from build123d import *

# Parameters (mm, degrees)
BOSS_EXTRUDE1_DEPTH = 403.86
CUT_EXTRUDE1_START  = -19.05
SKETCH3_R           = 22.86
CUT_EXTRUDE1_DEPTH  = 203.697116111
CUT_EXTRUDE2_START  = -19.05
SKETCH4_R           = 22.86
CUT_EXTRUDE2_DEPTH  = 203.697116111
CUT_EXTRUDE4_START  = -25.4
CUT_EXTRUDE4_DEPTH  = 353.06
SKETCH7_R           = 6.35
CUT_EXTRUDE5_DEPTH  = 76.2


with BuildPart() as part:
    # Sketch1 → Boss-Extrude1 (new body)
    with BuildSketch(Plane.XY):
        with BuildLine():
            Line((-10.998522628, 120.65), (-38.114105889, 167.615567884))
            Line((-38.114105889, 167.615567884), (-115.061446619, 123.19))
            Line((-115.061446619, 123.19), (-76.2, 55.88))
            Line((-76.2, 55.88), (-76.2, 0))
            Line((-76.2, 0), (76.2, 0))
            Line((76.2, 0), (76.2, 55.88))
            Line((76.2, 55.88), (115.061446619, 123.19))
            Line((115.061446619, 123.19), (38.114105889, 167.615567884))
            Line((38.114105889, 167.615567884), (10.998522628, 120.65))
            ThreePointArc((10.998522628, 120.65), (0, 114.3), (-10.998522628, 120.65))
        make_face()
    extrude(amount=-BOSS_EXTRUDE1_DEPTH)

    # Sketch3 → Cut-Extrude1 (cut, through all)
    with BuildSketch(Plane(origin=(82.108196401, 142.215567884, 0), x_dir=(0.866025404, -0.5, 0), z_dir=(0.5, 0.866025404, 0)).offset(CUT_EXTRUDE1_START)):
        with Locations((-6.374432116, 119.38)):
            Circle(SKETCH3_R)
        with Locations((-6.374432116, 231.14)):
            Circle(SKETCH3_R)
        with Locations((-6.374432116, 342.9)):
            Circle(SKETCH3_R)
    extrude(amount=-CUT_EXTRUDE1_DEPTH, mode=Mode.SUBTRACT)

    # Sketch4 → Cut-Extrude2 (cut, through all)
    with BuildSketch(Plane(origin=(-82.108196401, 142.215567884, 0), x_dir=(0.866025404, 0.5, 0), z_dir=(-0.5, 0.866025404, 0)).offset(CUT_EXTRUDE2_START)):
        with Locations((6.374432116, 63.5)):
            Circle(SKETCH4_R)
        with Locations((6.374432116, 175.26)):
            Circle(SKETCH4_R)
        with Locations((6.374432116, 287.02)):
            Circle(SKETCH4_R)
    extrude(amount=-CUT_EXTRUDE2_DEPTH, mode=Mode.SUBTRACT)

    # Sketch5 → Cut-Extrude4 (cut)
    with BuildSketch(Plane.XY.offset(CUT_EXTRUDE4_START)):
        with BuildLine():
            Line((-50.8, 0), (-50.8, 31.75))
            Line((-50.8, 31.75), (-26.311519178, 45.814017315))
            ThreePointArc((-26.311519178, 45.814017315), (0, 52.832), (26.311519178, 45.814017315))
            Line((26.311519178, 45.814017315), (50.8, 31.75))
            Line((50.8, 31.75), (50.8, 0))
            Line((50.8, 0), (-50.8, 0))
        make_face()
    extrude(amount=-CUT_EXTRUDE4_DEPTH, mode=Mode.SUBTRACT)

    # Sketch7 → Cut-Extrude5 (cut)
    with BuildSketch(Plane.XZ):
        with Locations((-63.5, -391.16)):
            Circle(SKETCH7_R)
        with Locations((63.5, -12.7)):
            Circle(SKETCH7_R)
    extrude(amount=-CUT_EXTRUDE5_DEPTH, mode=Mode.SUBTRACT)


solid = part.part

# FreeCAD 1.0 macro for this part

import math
import FreeCAD as App
import Part
import Sketcher
Q = App.Units.Quantity

doc = App.newDocument("Part")
body = doc.addObject("PartDesign::Body", "Body")

# Sketch on XY plane
sketch1 = body.newObject("Sketcher::SketchObject", "Sketch")
sketch1.AttachmentSupport = (doc.getObject("XY_Plane"), [""])
sketch1.MapMode = "FlatFace"
sketch1.addGeometry(Part.LineSegment(App.Vector(-11, 121, 0), App.Vector(-38, 168, 0)), False)
sketch1.addGeometry(Part.LineSegment(App.Vector(-38, 168, 0), App.Vector(-115, 123, 0)), False)
sketch1.addGeometry(Part.LineSegment(App.Vector(-115, 123, 0), App.Vector(-76, 56, 0)), False)
sketch1.addGeometry(Part.LineSegment(App.Vector(-76, 56, 0), App.Vector(-76, 0, 0)), False)
sketch1.addGeometry(Part.LineSegment(App.Vector(-76, 0, 0), App.Vector(76, 0, 0)), False)
sketch1.addGeometry(Part.LineSegment(App.Vector(76, 0, 0), App.Vector(76, 56, 0)), False)
sketch1.addGeometry(Part.LineSegment(App.Vector(76, 56, 0), App.Vector(115, 123, 0)), False)
sketch1.addGeometry(Part.LineSegment(App.Vector(115, 123, 0), App.Vector(38, 168, 0)), False)
sketch1.addGeometry(Part.LineSegment(App.Vector(38, 168, 0), App.Vector(11, 121, 0)), False)
sketch1.addGeometry(Part.ArcOfCircle(Part.Circle(App.Vector(0, 127, 0), App.Vector(0, 0, 1), 13), math.radians(-150), math.radians(-30)), False)
sketch1.addConstraint(Sketcher.Constraint("Coincident", 0, 2, 1, 1))
sketch1.addConstraint(Sketcher.Constraint("Coincident", 1, 2, 2, 1))
sketch1.addConstraint(Sketcher.Constraint("Coincident", 2, 2, 3, 1))
sketch1.addConstraint(Sketcher.Constraint("Coincident", 3, 2, 4, 1))
sketch1.addConstraint(Sketcher.Constraint("Coincident", 4, 2, 5, 1))
sketch1.addConstraint(Sketcher.Constraint("Coincident", 5, 2, 6, 1))
sketch1.addConstraint(Sketcher.Constraint("Coincident", 6, 2, 7, 1))
sketch1.addConstraint(Sketcher.Constraint("Coincident", 7, 2, 8, 1))
sketch1.addConstraint(Sketcher.Constraint("Tangent", 8, 2, 9, 2))
sketch1.addConstraint(Sketcher.Constraint("Tangent", 9, 1, 0, 1))
sketch1.addConstraint(Sketcher.Constraint("Vertical", 3))
sketch1.addConstraint(Sketcher.Constraint("Horizontal", 4))
sketch1.addConstraint(Sketcher.Constraint("Vertical", 5))
sketch1.addConstraint(Sketcher.Constraint("Symmetric", 3, 2, 4, 2, -1, 1))
sketch1.addConstraint(Sketcher.Constraint("Symmetric", 1, 2, 6, 2, -2))
sketch1.addConstraint(Sketcher.Constraint("Symmetric", 0, 2, 7, 2, -2))
sketch1.addConstraint(Sketcher.Constraint("PointOnObject", 9, 3, -2))
sketch1.addConstraint(Sketcher.Constraint("Perpendicular", 0, 1))
sketch1.addConstraint(Sketcher.Constraint("Perpendicular", 1, 2))
sketch1.addConstraint(Sketcher.Constraint("Perpendicular", 6, 7))
sketch1.addConstraint(Sketcher.Constraint("Radius", 9, Q("0.5 in")))
sketch1.addConstraint(Sketcher.Constraint("DistanceX", 4, 1, 4, 2, Q("6 in")))
sketch1.addConstraint(Sketcher.Constraint("DistanceY", 3, 2, 3, 1, Q("2.2 in")))
sketch1.addConstraint(Sketcher.Constraint("DistanceY", -1, 1, 9, 3, Q("5 in")))
sketch1.addConstraint(Sketcher.Constraint("Angle", 0, Q("120 deg")))
sketch1.addConstraint(Sketcher.Constraint("DistanceY", 8, 2, 6, 2, Q("0.1 in")))
pad1 = body.newObject("PartDesign::Pad", "Pad")
pad1.Profile = sketch1
pad1.Length = Q("15.9 in")
pad1.Reversed = True

# Sketch on an angled plane
sketch2 = body.newObject("Sketcher::SketchObject", "Sketch001")
sketch2.Placement = App.Placement(App.Vector(72.583196, 125.717784, 0), App.Rotation(App.Vector(0.866025404, -0.5, 0), App.Vector(0, 0, -1), App.Vector(0.5, 0.866025404, 0), "ZXY"))
sketch2.addGeometry(Part.Circle(App.Vector(-6, 119, 0), App.Vector(0, 0, 1), 23), False)
sketch2.addGeometry(Part.Circle(App.Vector(-6, 231, 0), App.Vector(0, 0, 1), 23), False)
sketch2.addGeometry(Part.Circle(App.Vector(-6, 343, 0), App.Vector(0, 0, 1), 23), False)
sketch2.addConstraint(Sketcher.Constraint("Equal", 0, 1))
sketch2.addConstraint(Sketcher.Constraint("Equal", 1, 2))
sketch2.addConstraint(Sketcher.Constraint("Vertical", 0, 3, 1, 3))
sketch2.addConstraint(Sketcher.Constraint("Vertical", 1, 3, 2, 3))
sketch2.addConstraint(Sketcher.Constraint("Diameter", 0, Q("1.8 in")))
sketch2.addConstraint(Sketcher.Constraint("DistanceY", -1, 1, 0, 3, Q("4.7 in")))
sketch2.addConstraint(Sketcher.Constraint("DistanceY", -1, 1, 1, 3, Q("9.1 in")))
sketch2.addConstraint(Sketcher.Constraint("DistanceY", -1, 1, 2, 3, Q("13.5 in")))
sketch2.addConstraint(Sketcher.Constraint("DistanceX", 0, 3, -1, 1, Q("6.374432 mm")))
pocket1 = body.newObject("PartDesign::Pocket", "Pocket")
pocket1.Profile = sketch2
pocket1.Type = "ThroughAll"

# Sketch on an angled plane
sketch3 = body.newObject("Sketcher::SketchObject", "Sketch002")
sketch3.Placement = App.Placement(App.Vector(-72.583196, 125.717784, 0), App.Rotation(App.Vector(0.866025404, 0.5, 0), App.Vector(0, 0, -1), App.Vector(-0.5, 0.866025404, 0), "ZXY"))
sketch3.addGeometry(Part.Circle(App.Vector(6, 64, 0), App.Vector(0, 0, 1), 23), False)
sketch3.addGeometry(Part.Circle(App.Vector(6, 175, 0), App.Vector(0, 0, 1), 23), False)
sketch3.addGeometry(Part.Circle(App.Vector(6, 287, 0), App.Vector(0, 0, 1), 23), False)
sketch3.addConstraint(Sketcher.Constraint("Equal", 0, 1))
sketch3.addConstraint(Sketcher.Constraint("Equal", 1, 2))
sketch3.addConstraint(Sketcher.Constraint("Vertical", 0, 3, 1, 3))
sketch3.addConstraint(Sketcher.Constraint("Vertical", 1, 3, 2, 3))
sketch3.addConstraint(Sketcher.Constraint("Diameter", 0, Q("1.8 in")))
sketch3.addConstraint(Sketcher.Constraint("DistanceY", -1, 1, 0, 3, Q("2.5 in")))
sketch3.addConstraint(Sketcher.Constraint("DistanceY", -1, 1, 1, 3, Q("6.9 in")))
sketch3.addConstraint(Sketcher.Constraint("DistanceY", -1, 1, 2, 3, Q("11.3 in")))
sketch3.addConstraint(Sketcher.Constraint("DistanceX", -1, 1, 0, 3, Q("6.374432 mm")))
pocket2 = body.newObject("PartDesign::Pocket", "Pocket001")
pocket2.Profile = sketch3
pocket2.Type = "ThroughAll"

# Sketch on XY plane
sketch4 = body.newObject("Sketcher::SketchObject", "Sketch003")
sketch4.AttachmentSupport = (doc.getObject("XY_Plane"), [""])
sketch4.MapMode = "FlatFace"
sketch4.AttachmentOffset = App.Placement(App.Vector(0, 0, -1 * 25.4), App.Rotation())
sketch4.addGeometry(Part.LineSegment(App.Vector(-51, 32, 0), App.Vector(-51, 0, 0)), False)
sketch4.addGeometry(Part.LineSegment(App.Vector(-51, 0, 0), App.Vector(51, 0, 0)), False)
sketch4.addGeometry(Part.LineSegment(App.Vector(51, 0, 0), App.Vector(51, 32, 0)), False)
sketch4.addGeometry(Part.LineSegment(App.Vector(51, 32, 0), App.Vector(26, 46, 0)), False)
sketch4.addGeometry(Part.ArcOfCircle(Part.Circle(App.Vector(0, 0, 0), App.Vector(0, 0, 1), 53), math.radians(60), math.radians(120)), False)
sketch4.addGeometry(Part.LineSegment(App.Vector(-26, 46, 0), App.Vector(-51, 32, 0)), False)
sketch4.addConstraint(Sketcher.Constraint("Coincident", 0, 2, 1, 1))
sketch4.addConstraint(Sketcher.Constraint("Coincident", 1, 2, 2, 1))
sketch4.addConstraint(Sketcher.Constraint("Coincident", 2, 2, 3, 1))
sketch4.addConstraint(Sketcher.Constraint("Tangent", 3, 2, 4, 1))
sketch4.addConstraint(Sketcher.Constraint("Tangent", 4, 2, 5, 1))
sketch4.addConstraint(Sketcher.Constraint("Coincident", 5, 2, 0, 1))
sketch4.addConstraint(Sketcher.Constraint("Vertical", 0))
sketch4.addConstraint(Sketcher.Constraint("Horizontal", 1))
sketch4.addConstraint(Sketcher.Constraint("Vertical", 2))
sketch4.addConstraint(Sketcher.Constraint("Coincident", 4, 3, -1, 1))
sketch4.addConstraint(Sketcher.Constraint("Symmetric", 0, 2, 1, 2, -1, 1))
sketch4.addConstraint(Sketcher.Constraint("Horizontal", 3, 2, 4, 2))
sketch4.addConstraint(Sketcher.Constraint("DistanceX", 1, 1, 1, 2, Q("4 in")))
sketch4.addConstraint(Sketcher.Constraint("Radius", 4, Q("2.08 in")))
sketch4.addConstraint(Sketcher.Constraint("DistanceY", 0, 2, 0, 1, Q("1.25 in")))
pocket3 = body.newObject("PartDesign::Pocket", "Pocket002")
pocket3.Profile = sketch4
pocket3.Length = Q("13.9 in")

# Sketch on XZ plane
sketch5 = body.newObject("Sketcher::SketchObject", "Sketch004")
sketch5.AttachmentSupport = (doc.getObject("XZ_Plane"), [""])
sketch5.MapMode = "FlatFace"
sketch5.addGeometry(Part.Circle(App.Vector(-64, -391, 0), App.Vector(0, 0, 1), 6), False)
sketch5.addGeometry(Part.Circle(App.Vector(64, -13, 0), App.Vector(0, 0, 1), 6), False)
sketch5.addConstraint(Sketcher.Constraint("Equal", 0, 1))
sketch5.addConstraint(Sketcher.Constraint("Diameter", 0, Q("0.5 in")))
sketch5.addConstraint(Sketcher.Constraint("DistanceX", 0, 3, 1, 3, Q("5 in")))
sketch5.addConstraint(Sketcher.Constraint("DistanceX", 0, 3, -1, 1, Q("2.5 in")))
sketch5.addConstraint(Sketcher.Constraint("DistanceY", 0, 3, -1, 1, Q("15.4 in")))
sketch5.addConstraint(Sketcher.Constraint("DistanceY", 1, 3, -1, 1, Q("0.5 in")))
pocket4 = body.newObject("PartDesign::Pocket", "Pocket003")
pocket4.Profile = sketch5
pocket4.Length = Q("3 in")

doc.recompute()
